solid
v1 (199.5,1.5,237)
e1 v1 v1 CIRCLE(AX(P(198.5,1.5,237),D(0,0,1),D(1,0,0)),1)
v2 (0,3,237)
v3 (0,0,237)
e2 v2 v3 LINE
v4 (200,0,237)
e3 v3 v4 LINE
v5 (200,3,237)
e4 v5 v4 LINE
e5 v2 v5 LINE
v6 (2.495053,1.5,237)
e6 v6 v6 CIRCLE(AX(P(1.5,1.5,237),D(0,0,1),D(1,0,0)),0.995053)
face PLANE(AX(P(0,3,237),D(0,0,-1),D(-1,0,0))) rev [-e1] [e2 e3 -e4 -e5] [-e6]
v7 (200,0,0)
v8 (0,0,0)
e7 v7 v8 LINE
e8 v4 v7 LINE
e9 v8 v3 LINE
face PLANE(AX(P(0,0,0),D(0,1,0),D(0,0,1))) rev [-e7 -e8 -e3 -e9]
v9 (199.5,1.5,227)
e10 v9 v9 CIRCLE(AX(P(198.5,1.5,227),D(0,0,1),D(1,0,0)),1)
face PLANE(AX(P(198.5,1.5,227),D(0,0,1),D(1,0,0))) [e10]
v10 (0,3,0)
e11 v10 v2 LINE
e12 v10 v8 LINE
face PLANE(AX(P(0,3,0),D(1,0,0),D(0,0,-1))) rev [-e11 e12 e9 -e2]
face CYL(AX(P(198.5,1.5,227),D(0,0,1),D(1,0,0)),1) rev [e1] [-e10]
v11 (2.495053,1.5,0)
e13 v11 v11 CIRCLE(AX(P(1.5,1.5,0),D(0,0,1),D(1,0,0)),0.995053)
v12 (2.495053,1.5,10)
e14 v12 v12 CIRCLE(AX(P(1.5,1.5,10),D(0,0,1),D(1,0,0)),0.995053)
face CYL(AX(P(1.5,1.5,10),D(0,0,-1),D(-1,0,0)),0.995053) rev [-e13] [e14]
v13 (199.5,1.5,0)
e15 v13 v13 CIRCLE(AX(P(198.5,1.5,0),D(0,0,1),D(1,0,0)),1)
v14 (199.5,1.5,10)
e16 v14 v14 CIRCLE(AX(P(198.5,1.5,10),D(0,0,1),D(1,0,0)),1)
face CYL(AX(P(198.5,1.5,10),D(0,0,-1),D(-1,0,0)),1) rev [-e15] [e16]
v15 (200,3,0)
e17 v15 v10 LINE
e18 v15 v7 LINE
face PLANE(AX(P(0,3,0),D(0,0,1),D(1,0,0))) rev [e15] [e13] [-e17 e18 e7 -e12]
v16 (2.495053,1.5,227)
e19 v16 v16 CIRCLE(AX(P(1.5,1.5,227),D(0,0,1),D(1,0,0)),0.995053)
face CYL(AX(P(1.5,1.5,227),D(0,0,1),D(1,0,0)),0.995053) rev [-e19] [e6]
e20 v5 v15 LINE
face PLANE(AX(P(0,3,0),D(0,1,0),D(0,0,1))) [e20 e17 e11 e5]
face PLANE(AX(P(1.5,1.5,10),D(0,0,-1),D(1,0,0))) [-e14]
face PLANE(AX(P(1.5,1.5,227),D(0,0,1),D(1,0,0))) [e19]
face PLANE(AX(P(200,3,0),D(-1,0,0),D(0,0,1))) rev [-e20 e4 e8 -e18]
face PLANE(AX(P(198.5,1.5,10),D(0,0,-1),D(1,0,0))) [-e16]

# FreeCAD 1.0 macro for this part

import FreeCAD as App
import Part
import Sketcher
Q = App.Units.Quantity

doc = App.newDocument("Part")
body = doc.addObject("PartDesign::Body", "Body")

sketch1 = doc.addObject("Sketcher::SketchObject", "Sketch")
body.addObject(sketch1)
sketch1.AttachmentSupport = (doc.XZ_Plane, [""])
sketch1.MapMode = "FlatFace"
sketch1.addGeometry([
    Part.LineSegment(App.Vector(0, 0, 0), App.Vector(0, 237, 0)),
    Part.LineSegment(App.Vector(0, 237, 0), App.Vector(200, 237, 0)),
    Part.LineSegment(App.Vector(200, 237, 0), App.Vector(200, 0, 0)),
    Part.LineSegment(App.Vector(200, 0, 0), App.Vector(0, 0, 0)),
], False)
sketch1.addConstraint([
    Sketcher.Constraint("Coincident", 0, 2, 1, 1),
    Sketcher.Constraint("Coincident", 1, 2, 2, 1),
    Sketcher.Constraint("Coincident", 2, 2, 3, 1),
    Sketcher.Constraint("Coincident", 3, 2, 0, 1),
    Sketcher.Constraint("Vertical", 0),
    Sketcher.Constraint("Horizontal", 1),
    Sketcher.Constraint("Vertical", 2),
    Sketcher.Constraint("Horizontal", 3),
    Sketcher.Constraint("Coincident", 3, 2, -1, 1),
    Sketcher.Constraint("DistanceX", 1, 1, 1, 2, Q("200 mm")),
    Sketcher.Constraint("DistanceY", 0, 1, 0, 2, Q("237 mm")),
])
pad1 = doc.addObject("PartDesign::Pad", "Pad")
body.addObject(pad1)
pad1.Profile = sketch1
pad1.Length = 3
pad1.Reversed = True

sketch2 = doc.addObject("Sketcher::SketchObject", "Sketch001")
body.addObject(sketch2)
sketch2.AttachmentSupport = (doc.XY_Plane, [""])
sketch2.MapMode = "FlatFace"
sketch2.AttachmentOffset = App.Placement(App.Vector(0, 0, 237), App.Rotation())
sketch2.addGeometry([
    Part.Circle(App.Vector(1.5, 1.5, 0), App.Vector(0, 0, 1), 1),
    Part.Circle(App.Vector(198.5, 1.5, 0), App.Vector(0, 0, 1), 1),
], False)
sketch2.addConstraint([
    Sketcher.Constraint("Horizontal", 0, 3, 1, 3),
    Sketcher.Constraint("Diameter", 1, Q("2 mm")),
    Sketcher.Constraint("DistanceX", 0, 3, 1, 3, Q("197 mm")),
    Sketcher.Constraint("DistanceX", -1, 1, 0, 3, Q("1.5 mm")),
    Sketcher.Constraint("DistanceY", -1, 1, 0, 3, Q("1.5 mm")),
    Sketcher.Constraint("Diameter", 0, Q("1.990105 mm")),
])
pocket1 = doc.addObject("PartDesign::Pocket", "Pocket")
body.addObject(pocket1)
pocket1.Profile = sketch2
pocket1.Length = 10
doc.recompute()

datumplane = doc.addObject("PartDesign::Plane", "DatumPlane")
body.addObject(datumplane)
datumplane.AttachmentSupport = (doc.XY_Plane, [""])
datumplane.MapMode = "FlatFace"
datumplane.AttachmentOffset = App.Placement(App.Vector(0, 0, 118.5), App.Rotation())
mirrored = doc.addObject("PartDesign::Mirrored", "Mirrored")
body.addObject(mirrored)
mirrored.Originals = [pocket1]
mirrored.MirrorPlane = (datumplane, [""])
body.Tip = mirrored

doc.recompute()
